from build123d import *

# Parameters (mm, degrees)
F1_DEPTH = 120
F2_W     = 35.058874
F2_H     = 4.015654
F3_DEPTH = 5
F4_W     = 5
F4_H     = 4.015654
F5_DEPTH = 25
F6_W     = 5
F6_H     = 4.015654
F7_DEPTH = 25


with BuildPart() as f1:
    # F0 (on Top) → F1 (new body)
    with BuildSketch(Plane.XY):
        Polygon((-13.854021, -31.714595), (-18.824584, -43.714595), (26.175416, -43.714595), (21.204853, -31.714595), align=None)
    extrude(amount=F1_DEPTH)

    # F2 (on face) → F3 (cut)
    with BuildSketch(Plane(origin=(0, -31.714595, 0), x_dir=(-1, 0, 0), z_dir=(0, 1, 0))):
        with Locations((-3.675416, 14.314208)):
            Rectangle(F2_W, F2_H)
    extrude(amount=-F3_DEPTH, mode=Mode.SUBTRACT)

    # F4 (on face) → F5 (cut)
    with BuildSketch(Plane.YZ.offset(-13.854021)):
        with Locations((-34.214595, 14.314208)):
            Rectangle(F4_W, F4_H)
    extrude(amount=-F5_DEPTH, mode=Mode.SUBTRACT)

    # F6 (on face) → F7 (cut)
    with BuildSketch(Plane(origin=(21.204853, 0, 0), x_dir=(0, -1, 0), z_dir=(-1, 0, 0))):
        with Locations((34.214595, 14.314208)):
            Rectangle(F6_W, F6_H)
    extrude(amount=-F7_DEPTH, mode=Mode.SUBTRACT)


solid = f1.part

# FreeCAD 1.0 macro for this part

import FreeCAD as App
import Part
import Sketcher

V = App.Vector
Q = App.Units.Quantity


def add_polygon(sketch, points):
    """Adds a closed chain of lines whose ends are joined by coincident constraints."""
    first, n = sketch.GeometryCount, len(points)
    for a, b in zip(points, points[1:] + points[:1]):
        sketch.addGeometry(Part.LineSegment(App.Vector(*a, 0), App.Vector(*b, 0)), False)
    for i in range(n):
        sketch.addConstraint(Sketcher.Constraint("Coincident", first + i, 2, first + (i + 1) % n, 1))

doc = App.newDocument("Part")
body = doc.addObject("PartDesign::Body", "Body")

# Sketch on XY plane
sketch1 = body.newObject("Sketcher::SketchObject", "Sketch")
sketch1.AttachmentSupport = (doc.getObject("XY_Plane"), [""])
sketch1.MapMode = "FlatFace"
add_polygon(sketch1, [(-14, -32), (-19, -44), (26, -44), (21, -32)])  # lines 0-3
sketch1.addConstraint([
    Sketcher.Constraint("Horizontal", 1),
    Sketcher.Constraint("Horizontal", 3),
    Sketcher.Constraint("Equal", 0, 2),
    Sketcher.Constraint("DistanceX", 1, 1, 1, 2, 45.0),
    Sketcher.Constraint("Angle", 0, Q("-112.500001 deg")),
    Sketcher.Constraint("DistanceY", 1, 2, 2, 2, 12.0),
    Sketcher.Constraint("DistanceX", 3, 2, -1, 1, 13.854021),
    Sketcher.Constraint("DistanceY", 0, 2, -1, 1, 43.714595),
])
pad1 = body.newObject("PartDesign::Pad", "Pad")
pad1.Profile = sketch1
pad1.Length = 120

# Sketch on XZ plane
sketch2 = body.newObject("Sketcher::SketchObject", "Sketch001")
sketch2.AttachmentSupport = (doc.getObject("XZ_Plane"), [""])
sketch2.MapMode = "FlatFace"
sketch2.AttachmentOffset = App.Placement(V(0, 0, 31.714595), App.Rotation())
add_polygon(sketch2, [(21.2, 16.3), (21.2, 12.3), (-13.9, 12.3), (-13.9, 16.3)])  # lines 0-3
sketch2.addConstraint([
    Sketcher.Constraint("Vertical", 0),
    Sketcher.Constraint("Horizontal", 1),
    Sketcher.Constraint("Vertical", 2),
    Sketcher.Constraint("Horizontal", 3),
    Sketcher.Constraint("DistanceX", 1, 2, 1, 1, 35.058874),
    Sketcher.Constraint("DistanceY", 0, 2, 0, 1, 4.015654),
    Sketcher.Constraint("DistanceY", -1, 1, 0, 2, 12.306381),
    Sketcher.Constraint("DistanceX", 1, 2, -1, 1, 13.854021),
])
pocket1 = body.newObject("PartDesign::Pocket", "Pocket")
pocket1.Profile = sketch2
pocket1.Length = 5
pocket1.Reversed = True

# Sketch on YZ plane
sketch3 = body.newObject("Sketcher::SketchObject", "Sketch002")
sketch3.AttachmentSupport = (doc.getObject("YZ_Plane"), [""])
sketch3.MapMode = "FlatFace"
sketch3.AttachmentOffset = App.Placement(V(0, 0, -13.854021), App.Rotation())
add_polygon(sketch3, [(-36.7, 16.3), (-36.7, 12.3), (-31.7, 12.3), (-31.7, 16.3)])  # lines 0-3
sketch3.addConstraint([
    Sketcher.Constraint("Vertical", 0),
    Sketcher.Constraint("Horizontal", 1),
    Sketcher.Constraint("Vertical", 2),
    Sketcher.Constraint("Horizontal", 3),
    Sketcher.Constraint("DistanceX", 1, 1, 1, 2, 5.0),
    Sketcher.Constraint("DistanceY", 0, 2, 0, 1, 4.015654),
    Sketcher.Constraint("DistanceY", -1, 1, 0, 2, 12.306381),
    Sketcher.Constraint("DistanceX", 0, 2, -1, 1, 36.714595),
])
pocket2 = body.newObject("PartDesign::Pocket", "Pocket001")
pocket2.Profile = sketch3
pocket2.Length = 25

# Sketch on YZ plane
sketch4 = body.newObject("Sketcher::SketchObject", "Sketch003")
sketch4.AttachmentSupport = (doc.getObject("YZ_Plane"), [""])
sketch4.MapMode = "FlatFace"
sketch4.AttachmentOffset = App.Placement(V(0, 0, 21.204853), App.Rotation())
add_polygon(sketch4, [(-31.7, 16.3), (-31.7, 12.3), (-36.7, 12.3), (-36.7, 16.3)])  # lines 0-3
sketch4.addConstraint([
    Sketcher.Constraint("Vertical", 0),
    Sketcher.Constraint("Horizontal", 1),
    Sketcher.Constraint("Vertical", 2),
    Sketcher.Constraint("Horizontal", 3),
    Sketcher.Constraint("DistanceX", 1, 2, 1, 1, 5.0),
    Sketcher.Constraint("DistanceY", 0, 2, 0, 1, 4.015654),
    Sketcher.Constraint("DistanceY", -1, 1, 0, 2, 12.306381),
    Sketcher.Constraint("DistanceX", 0, 2, -1, 1, 31.714595),
])
pocket3 = body.newObject("PartDesign::Pocket", "Pocket002")
pocket3.Profile = sketch4
pocket3.Length = 25
pocket3.Reversed = True

doc.recompute()
